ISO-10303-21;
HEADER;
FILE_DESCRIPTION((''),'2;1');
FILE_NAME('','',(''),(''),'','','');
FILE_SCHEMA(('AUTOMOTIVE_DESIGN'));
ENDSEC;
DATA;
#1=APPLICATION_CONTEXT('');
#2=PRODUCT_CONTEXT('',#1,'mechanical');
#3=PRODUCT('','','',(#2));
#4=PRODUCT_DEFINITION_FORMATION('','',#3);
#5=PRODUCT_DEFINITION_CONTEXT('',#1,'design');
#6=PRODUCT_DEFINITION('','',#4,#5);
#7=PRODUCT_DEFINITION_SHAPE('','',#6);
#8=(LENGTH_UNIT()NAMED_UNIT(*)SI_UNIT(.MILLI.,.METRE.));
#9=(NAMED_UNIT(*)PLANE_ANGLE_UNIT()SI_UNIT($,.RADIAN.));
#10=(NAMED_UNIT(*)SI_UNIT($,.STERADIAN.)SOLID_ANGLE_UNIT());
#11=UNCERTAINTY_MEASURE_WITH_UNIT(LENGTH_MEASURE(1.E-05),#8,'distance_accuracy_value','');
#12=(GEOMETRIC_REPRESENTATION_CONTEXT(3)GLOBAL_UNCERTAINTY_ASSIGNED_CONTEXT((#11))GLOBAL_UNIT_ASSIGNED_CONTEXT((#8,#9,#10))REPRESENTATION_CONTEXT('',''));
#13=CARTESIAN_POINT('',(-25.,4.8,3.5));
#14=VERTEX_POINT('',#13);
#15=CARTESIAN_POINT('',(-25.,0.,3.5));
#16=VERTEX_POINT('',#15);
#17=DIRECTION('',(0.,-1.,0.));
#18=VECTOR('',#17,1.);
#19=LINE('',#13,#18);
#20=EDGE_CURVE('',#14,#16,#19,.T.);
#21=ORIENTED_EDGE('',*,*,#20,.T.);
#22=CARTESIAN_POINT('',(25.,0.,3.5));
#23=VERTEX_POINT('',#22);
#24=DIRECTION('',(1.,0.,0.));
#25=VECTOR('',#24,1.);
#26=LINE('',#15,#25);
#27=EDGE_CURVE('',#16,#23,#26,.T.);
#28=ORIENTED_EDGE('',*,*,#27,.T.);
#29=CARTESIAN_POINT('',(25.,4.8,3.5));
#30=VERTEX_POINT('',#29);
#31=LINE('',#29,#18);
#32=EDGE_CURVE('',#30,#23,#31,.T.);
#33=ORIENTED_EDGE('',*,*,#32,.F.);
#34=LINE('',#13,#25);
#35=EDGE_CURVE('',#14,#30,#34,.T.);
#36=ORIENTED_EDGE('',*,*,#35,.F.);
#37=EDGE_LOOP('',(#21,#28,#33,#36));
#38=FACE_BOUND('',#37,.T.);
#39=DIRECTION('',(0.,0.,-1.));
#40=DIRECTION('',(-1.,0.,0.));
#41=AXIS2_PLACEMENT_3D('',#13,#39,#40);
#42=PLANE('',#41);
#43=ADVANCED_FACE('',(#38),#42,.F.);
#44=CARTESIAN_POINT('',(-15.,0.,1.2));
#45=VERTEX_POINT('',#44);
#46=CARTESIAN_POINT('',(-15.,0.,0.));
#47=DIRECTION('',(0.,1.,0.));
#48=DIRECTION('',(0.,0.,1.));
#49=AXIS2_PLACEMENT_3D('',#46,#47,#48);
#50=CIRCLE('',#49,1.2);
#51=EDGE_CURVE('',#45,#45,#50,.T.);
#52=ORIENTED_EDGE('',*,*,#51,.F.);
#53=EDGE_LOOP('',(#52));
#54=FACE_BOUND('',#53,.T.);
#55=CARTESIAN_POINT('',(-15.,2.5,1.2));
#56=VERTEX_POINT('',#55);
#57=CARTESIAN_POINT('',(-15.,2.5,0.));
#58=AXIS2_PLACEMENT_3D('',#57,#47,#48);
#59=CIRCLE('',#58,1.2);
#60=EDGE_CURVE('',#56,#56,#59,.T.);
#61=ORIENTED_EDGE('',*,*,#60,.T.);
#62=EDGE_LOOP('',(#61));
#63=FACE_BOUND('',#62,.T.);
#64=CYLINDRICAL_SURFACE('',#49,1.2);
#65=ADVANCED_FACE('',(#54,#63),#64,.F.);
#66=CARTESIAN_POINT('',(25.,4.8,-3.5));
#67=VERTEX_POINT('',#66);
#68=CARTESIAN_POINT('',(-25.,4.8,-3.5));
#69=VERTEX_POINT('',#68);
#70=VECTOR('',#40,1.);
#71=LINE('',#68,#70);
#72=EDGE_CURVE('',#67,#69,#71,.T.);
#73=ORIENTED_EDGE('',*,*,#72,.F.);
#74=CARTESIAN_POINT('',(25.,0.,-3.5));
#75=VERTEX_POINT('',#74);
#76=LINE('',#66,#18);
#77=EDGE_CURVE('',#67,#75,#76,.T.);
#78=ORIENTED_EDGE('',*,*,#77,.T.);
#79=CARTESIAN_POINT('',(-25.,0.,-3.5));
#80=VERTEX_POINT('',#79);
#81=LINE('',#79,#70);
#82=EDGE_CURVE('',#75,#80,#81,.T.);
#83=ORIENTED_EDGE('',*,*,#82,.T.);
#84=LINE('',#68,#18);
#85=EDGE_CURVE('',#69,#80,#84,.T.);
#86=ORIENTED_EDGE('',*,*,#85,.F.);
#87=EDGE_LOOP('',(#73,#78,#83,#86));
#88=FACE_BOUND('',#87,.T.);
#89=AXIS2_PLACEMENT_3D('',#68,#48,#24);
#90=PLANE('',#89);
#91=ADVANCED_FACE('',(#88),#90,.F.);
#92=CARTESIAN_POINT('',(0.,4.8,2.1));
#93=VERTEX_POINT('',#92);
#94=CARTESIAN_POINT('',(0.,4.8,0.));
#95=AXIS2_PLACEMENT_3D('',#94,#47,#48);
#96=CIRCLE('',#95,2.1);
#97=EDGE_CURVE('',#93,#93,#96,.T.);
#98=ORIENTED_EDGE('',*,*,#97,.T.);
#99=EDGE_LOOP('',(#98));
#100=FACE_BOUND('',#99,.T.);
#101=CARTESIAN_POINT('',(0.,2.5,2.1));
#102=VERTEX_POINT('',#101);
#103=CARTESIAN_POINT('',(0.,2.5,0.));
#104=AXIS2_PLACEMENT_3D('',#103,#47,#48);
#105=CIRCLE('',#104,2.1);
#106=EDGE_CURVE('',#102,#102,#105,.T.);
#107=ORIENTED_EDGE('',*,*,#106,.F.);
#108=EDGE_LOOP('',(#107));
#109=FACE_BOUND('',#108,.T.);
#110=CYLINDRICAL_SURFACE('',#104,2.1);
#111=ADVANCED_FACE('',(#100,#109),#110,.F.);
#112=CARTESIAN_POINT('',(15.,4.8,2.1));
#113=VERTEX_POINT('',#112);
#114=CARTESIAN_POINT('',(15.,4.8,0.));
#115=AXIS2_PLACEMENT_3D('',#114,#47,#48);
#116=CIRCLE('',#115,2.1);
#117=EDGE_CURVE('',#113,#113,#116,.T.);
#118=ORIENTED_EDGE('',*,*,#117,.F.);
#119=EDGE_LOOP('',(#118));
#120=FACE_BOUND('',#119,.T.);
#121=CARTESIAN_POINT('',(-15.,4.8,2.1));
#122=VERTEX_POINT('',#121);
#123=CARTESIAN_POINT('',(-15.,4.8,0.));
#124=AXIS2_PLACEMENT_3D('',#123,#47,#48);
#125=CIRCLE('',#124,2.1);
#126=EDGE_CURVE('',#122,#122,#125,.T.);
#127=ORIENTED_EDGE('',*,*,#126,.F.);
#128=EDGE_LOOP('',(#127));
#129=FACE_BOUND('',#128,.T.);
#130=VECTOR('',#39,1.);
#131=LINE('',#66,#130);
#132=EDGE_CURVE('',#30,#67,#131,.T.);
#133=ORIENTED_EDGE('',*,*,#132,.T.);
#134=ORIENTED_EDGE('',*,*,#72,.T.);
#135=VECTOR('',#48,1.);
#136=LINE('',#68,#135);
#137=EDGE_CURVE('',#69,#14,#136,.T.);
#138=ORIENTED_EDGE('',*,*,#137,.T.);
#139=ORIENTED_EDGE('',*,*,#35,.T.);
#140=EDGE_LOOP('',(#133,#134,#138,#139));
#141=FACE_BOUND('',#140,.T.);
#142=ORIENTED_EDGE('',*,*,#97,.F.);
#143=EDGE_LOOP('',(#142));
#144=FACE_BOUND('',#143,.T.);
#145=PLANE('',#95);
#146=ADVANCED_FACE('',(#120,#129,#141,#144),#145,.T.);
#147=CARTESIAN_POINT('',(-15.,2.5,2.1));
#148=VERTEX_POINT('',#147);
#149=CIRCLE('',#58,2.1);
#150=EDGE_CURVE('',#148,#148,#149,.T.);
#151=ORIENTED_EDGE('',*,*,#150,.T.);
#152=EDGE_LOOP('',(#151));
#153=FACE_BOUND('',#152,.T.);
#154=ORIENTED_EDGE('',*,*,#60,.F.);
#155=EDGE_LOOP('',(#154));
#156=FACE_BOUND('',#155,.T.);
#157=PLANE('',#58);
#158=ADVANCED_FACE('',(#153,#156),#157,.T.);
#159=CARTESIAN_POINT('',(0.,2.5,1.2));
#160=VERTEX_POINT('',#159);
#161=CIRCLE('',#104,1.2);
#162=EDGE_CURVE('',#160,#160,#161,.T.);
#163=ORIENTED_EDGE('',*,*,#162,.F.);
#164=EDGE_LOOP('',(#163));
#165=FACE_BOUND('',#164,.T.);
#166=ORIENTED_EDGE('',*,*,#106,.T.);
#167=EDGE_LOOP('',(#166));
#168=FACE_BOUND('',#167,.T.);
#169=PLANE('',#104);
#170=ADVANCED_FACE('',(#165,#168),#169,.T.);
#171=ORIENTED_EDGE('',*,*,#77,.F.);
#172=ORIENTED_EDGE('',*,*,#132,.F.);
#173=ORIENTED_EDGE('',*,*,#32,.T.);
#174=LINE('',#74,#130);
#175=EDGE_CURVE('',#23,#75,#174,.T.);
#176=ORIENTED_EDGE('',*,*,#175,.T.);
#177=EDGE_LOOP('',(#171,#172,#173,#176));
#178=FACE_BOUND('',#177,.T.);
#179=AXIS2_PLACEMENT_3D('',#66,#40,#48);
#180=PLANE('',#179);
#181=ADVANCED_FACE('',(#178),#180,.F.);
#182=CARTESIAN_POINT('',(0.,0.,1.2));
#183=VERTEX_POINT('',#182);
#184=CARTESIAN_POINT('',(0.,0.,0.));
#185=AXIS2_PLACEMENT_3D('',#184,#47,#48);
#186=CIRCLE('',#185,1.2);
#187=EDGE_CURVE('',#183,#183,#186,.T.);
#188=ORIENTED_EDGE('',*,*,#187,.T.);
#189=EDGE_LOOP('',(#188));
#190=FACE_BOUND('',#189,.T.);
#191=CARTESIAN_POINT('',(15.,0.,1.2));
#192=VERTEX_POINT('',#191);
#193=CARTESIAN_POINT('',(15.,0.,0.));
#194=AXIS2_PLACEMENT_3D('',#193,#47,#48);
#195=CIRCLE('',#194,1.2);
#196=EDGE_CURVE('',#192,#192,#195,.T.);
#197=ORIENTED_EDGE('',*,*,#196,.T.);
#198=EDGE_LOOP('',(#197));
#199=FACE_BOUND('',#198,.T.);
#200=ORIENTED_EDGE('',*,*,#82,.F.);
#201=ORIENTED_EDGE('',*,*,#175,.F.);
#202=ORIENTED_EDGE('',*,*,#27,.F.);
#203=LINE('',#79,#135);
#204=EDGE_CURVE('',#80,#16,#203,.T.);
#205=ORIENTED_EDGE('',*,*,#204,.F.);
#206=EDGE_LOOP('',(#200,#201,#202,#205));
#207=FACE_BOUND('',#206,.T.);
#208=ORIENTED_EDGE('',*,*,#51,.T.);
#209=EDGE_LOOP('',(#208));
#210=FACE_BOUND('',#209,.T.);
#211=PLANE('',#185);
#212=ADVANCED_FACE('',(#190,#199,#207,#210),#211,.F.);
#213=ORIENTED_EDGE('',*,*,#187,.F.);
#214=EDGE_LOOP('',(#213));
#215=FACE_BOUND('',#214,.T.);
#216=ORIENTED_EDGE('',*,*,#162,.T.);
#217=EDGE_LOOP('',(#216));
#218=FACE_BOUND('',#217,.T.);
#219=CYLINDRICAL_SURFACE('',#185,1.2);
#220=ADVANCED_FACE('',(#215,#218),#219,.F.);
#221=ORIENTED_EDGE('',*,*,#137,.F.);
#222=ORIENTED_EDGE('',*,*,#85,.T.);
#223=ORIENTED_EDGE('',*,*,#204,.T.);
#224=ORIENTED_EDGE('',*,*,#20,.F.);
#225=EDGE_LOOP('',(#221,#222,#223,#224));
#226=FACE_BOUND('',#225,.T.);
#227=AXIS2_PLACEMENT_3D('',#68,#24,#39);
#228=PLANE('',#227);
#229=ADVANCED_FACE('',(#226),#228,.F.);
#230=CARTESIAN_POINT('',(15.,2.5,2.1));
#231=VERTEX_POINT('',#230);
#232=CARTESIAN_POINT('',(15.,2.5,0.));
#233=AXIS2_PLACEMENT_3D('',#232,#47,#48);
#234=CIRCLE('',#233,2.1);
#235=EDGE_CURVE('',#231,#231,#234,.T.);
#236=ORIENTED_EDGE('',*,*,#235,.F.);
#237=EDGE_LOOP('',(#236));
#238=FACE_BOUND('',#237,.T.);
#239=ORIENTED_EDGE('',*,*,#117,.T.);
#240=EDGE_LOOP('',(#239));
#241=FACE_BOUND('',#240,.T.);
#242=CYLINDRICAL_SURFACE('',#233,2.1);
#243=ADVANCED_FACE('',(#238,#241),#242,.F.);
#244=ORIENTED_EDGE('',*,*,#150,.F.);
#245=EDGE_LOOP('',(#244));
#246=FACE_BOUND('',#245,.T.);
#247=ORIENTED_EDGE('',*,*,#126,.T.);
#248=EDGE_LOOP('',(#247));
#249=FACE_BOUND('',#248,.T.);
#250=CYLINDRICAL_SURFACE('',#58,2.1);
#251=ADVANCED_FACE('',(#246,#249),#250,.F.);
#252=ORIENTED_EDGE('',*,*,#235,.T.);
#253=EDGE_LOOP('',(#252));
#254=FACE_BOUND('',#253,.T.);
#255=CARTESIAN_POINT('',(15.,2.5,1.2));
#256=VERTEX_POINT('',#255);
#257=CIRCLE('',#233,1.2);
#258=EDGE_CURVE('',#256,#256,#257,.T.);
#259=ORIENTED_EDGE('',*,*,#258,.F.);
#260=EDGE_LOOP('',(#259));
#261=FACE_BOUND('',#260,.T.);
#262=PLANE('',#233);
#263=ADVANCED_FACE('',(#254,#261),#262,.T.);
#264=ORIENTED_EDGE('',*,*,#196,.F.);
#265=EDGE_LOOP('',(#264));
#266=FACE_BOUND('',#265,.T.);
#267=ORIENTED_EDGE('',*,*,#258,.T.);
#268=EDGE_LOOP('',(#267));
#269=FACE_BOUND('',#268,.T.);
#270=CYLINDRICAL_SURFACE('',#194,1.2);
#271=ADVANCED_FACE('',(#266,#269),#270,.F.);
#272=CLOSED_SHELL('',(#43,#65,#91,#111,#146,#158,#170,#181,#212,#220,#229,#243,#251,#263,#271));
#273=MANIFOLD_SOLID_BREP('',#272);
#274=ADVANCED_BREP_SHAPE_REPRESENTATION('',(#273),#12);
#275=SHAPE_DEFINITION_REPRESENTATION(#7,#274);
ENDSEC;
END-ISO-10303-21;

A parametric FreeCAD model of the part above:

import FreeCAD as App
import Part
import Sketcher
from FreeCAD import Vector
Q = App.Units.Quantity

doc = App.newDocument("Part")
params = doc.addObject("Spreadsheet::Sheet", "Params")
for row, (alias, value) in enumerate([
    ("sketch1_width", "50 mm"),
    ("sketch1_height", "7 mm"),
    ("pad1_length", "4.8 mm"),
    ("sketch2_diameter", "4.2 mm"),
    ("pocket1_length", "2.3 mm"),
    ("sketch3_diameter", "2.4 mm"),
], start=1):
    params.set(f"A{row}", alias)
    params.set(f"B{row}", "=" + value)
    params.setAlias(f"B{row}", alias)

body = doc.addObject("PartDesign::Body", "Body")

# Sketch on XZ plane
sketch1 = body.newObject("Sketcher::SketchObject", "Sketch")
sketch1.AttachmentSupport = (doc.getObject("XZ_Plane"), [""])
sketch1.MapMode = "FlatFace"
sketch1.addGeometry([
    Part.LineSegment(Vector(-25, -3.5, 0), Vector(-25, 3.5, 0)),
    Part.LineSegment(Vector(-25, 3.5, 0), Vector(25, 3.5, 0)),
    Part.LineSegment(Vector(25, 3.5, 0), Vector(25, -3.5, 0)),
    Part.LineSegment(Vector(25, -3.5, 0), Vector(-25, -3.5, 0)),
], False)
sketch1.addConstraint([
    Sketcher.Constraint("Coincident", 0, 2, 1, 1),
    Sketcher.Constraint("Coincident", 1, 2, 2, 1),
    Sketcher.Constraint("Coincident", 2, 2, 3, 1),
    Sketcher.Constraint("Coincident", 3, 2, 0, 1),
    Sketcher.Constraint("Vertical", 0),
    Sketcher.Constraint("Horizontal", 1),
    Sketcher.Constraint("Vertical", 2),
    Sketcher.Constraint("Horizontal", 3),
    Sketcher.Constraint("Symmetric", 0, 2, 2, 2, -1, 1),
    Sketcher.Constraint("DistanceX", 1, 1, 1, 2, Q("50 mm")),
    Sketcher.Constraint("DistanceY", 0, 1, 0, 2, Q("7 mm")),
])
sketch1.setExpression("Constraints[9]", "Params.sketch1_width")
sketch1.setExpression("Constraints[10]", "Params.sketch1_height")
pad1 = body.newObject("PartDesign::Pad", "Pad")
pad1.Profile = sketch1
pad1.setExpression("Length", "Params.pad1_length")
pad1.Reversed = True

# Sketch on XZ plane
sketch2 = body.newObject("Sketcher::SketchObject", "Sketch001")
sketch2.AttachmentSupport = (doc.getObject("XZ_Plane"), [""])
sketch2.MapMode = "FlatFace"
sketch2.AttachmentOffset = App.Placement(Vector(0, 0, -4.8), App.Rotation())
sketch2.addGeometry([
    Part.Circle(Vector(0, 0, 0), Vector(0, 0, 1), 2.1),
    Part.Circle(Vector(-15, 0, 0), Vector(0, 0, 1), 2.1),
    Part.Circle(Vector(15, 0, 0), Vector(0, 0, 1), 2.1),
], False)
sketch2.addConstraint([
    Sketcher.Constraint("Coincident", 0, 3, -1, 1),
    Sketcher.Constraint("Equal", 0, 1),
    Sketcher.Constraint("Equal", 1, 2),
    Sketcher.Constraint("Symmetric", 1, 3, 2, 3, -1, 1),
    Sketcher.Constraint("PointOnObject", 1, 3, -1),
    Sketcher.Constraint("Diameter", 0, Q("4.2 mm")),
    Sketcher.Constraint("DistanceX", 1, 3, -1, 1, Q("15 mm")),
])
sketch2.setExpression("Constraints[5]", "Params.sketch2_diameter")
pocket1 = body.newObject("PartDesign::Pocket", "Pocket")
pocket1.Profile = sketch2
pocket1.setExpression("Length", "Params.pocket1_length")
pocket1.Reversed = True

# Sketch on XZ plane
sketch3 = body.newObject("Sketcher::SketchObject", "Sketch002")
sketch3.AttachmentSupport = (doc.getObject("XZ_Plane"), [""])
sketch3.MapMode = "FlatFace"
sketch3.AttachmentOffset = App.Placement(Vector(0, 0, -2.5), App.Rotation())
sketch3.addGeometry([
    Part.Circle(Vector(0, 0, 0), Vector(0, 0, 1), 1.2),
    Part.Circle(Vector(-15, 0, 0), Vector(0, 0, 1), 1.2),
    Part.Circle(Vector(15, 0, 0), Vector(0, 0, 1), 1.2),
], False)
sketch3.addConstraint([
    Sketcher.Constraint("Coincident", 0, 3, -1, 1),
    Sketcher.Constraint("Equal", 0, 1),
    Sketcher.Constraint("Equal", 1, 2),
    Sketcher.Constraint("Symmetric", 1, 3, 2, 3, -1, 1),
    Sketcher.Constraint("PointOnObject", 1, 3, -1),
    Sketcher.Constraint("Diameter", 0, Q("2.4 mm")),
    Sketcher.Constraint("DistanceX", 1, 3, -1, 1, Q("15 mm")),
])
sketch3.setExpression("Constraints[5]", "Params.sketch3_diameter")
pocket2 = body.newObject("PartDesign::Pocket", "Pocket001")
pocket2.Profile = sketch3
pocket2.Type = "ThroughAll"
pocket2.Reversed = True

doc.recompute()
